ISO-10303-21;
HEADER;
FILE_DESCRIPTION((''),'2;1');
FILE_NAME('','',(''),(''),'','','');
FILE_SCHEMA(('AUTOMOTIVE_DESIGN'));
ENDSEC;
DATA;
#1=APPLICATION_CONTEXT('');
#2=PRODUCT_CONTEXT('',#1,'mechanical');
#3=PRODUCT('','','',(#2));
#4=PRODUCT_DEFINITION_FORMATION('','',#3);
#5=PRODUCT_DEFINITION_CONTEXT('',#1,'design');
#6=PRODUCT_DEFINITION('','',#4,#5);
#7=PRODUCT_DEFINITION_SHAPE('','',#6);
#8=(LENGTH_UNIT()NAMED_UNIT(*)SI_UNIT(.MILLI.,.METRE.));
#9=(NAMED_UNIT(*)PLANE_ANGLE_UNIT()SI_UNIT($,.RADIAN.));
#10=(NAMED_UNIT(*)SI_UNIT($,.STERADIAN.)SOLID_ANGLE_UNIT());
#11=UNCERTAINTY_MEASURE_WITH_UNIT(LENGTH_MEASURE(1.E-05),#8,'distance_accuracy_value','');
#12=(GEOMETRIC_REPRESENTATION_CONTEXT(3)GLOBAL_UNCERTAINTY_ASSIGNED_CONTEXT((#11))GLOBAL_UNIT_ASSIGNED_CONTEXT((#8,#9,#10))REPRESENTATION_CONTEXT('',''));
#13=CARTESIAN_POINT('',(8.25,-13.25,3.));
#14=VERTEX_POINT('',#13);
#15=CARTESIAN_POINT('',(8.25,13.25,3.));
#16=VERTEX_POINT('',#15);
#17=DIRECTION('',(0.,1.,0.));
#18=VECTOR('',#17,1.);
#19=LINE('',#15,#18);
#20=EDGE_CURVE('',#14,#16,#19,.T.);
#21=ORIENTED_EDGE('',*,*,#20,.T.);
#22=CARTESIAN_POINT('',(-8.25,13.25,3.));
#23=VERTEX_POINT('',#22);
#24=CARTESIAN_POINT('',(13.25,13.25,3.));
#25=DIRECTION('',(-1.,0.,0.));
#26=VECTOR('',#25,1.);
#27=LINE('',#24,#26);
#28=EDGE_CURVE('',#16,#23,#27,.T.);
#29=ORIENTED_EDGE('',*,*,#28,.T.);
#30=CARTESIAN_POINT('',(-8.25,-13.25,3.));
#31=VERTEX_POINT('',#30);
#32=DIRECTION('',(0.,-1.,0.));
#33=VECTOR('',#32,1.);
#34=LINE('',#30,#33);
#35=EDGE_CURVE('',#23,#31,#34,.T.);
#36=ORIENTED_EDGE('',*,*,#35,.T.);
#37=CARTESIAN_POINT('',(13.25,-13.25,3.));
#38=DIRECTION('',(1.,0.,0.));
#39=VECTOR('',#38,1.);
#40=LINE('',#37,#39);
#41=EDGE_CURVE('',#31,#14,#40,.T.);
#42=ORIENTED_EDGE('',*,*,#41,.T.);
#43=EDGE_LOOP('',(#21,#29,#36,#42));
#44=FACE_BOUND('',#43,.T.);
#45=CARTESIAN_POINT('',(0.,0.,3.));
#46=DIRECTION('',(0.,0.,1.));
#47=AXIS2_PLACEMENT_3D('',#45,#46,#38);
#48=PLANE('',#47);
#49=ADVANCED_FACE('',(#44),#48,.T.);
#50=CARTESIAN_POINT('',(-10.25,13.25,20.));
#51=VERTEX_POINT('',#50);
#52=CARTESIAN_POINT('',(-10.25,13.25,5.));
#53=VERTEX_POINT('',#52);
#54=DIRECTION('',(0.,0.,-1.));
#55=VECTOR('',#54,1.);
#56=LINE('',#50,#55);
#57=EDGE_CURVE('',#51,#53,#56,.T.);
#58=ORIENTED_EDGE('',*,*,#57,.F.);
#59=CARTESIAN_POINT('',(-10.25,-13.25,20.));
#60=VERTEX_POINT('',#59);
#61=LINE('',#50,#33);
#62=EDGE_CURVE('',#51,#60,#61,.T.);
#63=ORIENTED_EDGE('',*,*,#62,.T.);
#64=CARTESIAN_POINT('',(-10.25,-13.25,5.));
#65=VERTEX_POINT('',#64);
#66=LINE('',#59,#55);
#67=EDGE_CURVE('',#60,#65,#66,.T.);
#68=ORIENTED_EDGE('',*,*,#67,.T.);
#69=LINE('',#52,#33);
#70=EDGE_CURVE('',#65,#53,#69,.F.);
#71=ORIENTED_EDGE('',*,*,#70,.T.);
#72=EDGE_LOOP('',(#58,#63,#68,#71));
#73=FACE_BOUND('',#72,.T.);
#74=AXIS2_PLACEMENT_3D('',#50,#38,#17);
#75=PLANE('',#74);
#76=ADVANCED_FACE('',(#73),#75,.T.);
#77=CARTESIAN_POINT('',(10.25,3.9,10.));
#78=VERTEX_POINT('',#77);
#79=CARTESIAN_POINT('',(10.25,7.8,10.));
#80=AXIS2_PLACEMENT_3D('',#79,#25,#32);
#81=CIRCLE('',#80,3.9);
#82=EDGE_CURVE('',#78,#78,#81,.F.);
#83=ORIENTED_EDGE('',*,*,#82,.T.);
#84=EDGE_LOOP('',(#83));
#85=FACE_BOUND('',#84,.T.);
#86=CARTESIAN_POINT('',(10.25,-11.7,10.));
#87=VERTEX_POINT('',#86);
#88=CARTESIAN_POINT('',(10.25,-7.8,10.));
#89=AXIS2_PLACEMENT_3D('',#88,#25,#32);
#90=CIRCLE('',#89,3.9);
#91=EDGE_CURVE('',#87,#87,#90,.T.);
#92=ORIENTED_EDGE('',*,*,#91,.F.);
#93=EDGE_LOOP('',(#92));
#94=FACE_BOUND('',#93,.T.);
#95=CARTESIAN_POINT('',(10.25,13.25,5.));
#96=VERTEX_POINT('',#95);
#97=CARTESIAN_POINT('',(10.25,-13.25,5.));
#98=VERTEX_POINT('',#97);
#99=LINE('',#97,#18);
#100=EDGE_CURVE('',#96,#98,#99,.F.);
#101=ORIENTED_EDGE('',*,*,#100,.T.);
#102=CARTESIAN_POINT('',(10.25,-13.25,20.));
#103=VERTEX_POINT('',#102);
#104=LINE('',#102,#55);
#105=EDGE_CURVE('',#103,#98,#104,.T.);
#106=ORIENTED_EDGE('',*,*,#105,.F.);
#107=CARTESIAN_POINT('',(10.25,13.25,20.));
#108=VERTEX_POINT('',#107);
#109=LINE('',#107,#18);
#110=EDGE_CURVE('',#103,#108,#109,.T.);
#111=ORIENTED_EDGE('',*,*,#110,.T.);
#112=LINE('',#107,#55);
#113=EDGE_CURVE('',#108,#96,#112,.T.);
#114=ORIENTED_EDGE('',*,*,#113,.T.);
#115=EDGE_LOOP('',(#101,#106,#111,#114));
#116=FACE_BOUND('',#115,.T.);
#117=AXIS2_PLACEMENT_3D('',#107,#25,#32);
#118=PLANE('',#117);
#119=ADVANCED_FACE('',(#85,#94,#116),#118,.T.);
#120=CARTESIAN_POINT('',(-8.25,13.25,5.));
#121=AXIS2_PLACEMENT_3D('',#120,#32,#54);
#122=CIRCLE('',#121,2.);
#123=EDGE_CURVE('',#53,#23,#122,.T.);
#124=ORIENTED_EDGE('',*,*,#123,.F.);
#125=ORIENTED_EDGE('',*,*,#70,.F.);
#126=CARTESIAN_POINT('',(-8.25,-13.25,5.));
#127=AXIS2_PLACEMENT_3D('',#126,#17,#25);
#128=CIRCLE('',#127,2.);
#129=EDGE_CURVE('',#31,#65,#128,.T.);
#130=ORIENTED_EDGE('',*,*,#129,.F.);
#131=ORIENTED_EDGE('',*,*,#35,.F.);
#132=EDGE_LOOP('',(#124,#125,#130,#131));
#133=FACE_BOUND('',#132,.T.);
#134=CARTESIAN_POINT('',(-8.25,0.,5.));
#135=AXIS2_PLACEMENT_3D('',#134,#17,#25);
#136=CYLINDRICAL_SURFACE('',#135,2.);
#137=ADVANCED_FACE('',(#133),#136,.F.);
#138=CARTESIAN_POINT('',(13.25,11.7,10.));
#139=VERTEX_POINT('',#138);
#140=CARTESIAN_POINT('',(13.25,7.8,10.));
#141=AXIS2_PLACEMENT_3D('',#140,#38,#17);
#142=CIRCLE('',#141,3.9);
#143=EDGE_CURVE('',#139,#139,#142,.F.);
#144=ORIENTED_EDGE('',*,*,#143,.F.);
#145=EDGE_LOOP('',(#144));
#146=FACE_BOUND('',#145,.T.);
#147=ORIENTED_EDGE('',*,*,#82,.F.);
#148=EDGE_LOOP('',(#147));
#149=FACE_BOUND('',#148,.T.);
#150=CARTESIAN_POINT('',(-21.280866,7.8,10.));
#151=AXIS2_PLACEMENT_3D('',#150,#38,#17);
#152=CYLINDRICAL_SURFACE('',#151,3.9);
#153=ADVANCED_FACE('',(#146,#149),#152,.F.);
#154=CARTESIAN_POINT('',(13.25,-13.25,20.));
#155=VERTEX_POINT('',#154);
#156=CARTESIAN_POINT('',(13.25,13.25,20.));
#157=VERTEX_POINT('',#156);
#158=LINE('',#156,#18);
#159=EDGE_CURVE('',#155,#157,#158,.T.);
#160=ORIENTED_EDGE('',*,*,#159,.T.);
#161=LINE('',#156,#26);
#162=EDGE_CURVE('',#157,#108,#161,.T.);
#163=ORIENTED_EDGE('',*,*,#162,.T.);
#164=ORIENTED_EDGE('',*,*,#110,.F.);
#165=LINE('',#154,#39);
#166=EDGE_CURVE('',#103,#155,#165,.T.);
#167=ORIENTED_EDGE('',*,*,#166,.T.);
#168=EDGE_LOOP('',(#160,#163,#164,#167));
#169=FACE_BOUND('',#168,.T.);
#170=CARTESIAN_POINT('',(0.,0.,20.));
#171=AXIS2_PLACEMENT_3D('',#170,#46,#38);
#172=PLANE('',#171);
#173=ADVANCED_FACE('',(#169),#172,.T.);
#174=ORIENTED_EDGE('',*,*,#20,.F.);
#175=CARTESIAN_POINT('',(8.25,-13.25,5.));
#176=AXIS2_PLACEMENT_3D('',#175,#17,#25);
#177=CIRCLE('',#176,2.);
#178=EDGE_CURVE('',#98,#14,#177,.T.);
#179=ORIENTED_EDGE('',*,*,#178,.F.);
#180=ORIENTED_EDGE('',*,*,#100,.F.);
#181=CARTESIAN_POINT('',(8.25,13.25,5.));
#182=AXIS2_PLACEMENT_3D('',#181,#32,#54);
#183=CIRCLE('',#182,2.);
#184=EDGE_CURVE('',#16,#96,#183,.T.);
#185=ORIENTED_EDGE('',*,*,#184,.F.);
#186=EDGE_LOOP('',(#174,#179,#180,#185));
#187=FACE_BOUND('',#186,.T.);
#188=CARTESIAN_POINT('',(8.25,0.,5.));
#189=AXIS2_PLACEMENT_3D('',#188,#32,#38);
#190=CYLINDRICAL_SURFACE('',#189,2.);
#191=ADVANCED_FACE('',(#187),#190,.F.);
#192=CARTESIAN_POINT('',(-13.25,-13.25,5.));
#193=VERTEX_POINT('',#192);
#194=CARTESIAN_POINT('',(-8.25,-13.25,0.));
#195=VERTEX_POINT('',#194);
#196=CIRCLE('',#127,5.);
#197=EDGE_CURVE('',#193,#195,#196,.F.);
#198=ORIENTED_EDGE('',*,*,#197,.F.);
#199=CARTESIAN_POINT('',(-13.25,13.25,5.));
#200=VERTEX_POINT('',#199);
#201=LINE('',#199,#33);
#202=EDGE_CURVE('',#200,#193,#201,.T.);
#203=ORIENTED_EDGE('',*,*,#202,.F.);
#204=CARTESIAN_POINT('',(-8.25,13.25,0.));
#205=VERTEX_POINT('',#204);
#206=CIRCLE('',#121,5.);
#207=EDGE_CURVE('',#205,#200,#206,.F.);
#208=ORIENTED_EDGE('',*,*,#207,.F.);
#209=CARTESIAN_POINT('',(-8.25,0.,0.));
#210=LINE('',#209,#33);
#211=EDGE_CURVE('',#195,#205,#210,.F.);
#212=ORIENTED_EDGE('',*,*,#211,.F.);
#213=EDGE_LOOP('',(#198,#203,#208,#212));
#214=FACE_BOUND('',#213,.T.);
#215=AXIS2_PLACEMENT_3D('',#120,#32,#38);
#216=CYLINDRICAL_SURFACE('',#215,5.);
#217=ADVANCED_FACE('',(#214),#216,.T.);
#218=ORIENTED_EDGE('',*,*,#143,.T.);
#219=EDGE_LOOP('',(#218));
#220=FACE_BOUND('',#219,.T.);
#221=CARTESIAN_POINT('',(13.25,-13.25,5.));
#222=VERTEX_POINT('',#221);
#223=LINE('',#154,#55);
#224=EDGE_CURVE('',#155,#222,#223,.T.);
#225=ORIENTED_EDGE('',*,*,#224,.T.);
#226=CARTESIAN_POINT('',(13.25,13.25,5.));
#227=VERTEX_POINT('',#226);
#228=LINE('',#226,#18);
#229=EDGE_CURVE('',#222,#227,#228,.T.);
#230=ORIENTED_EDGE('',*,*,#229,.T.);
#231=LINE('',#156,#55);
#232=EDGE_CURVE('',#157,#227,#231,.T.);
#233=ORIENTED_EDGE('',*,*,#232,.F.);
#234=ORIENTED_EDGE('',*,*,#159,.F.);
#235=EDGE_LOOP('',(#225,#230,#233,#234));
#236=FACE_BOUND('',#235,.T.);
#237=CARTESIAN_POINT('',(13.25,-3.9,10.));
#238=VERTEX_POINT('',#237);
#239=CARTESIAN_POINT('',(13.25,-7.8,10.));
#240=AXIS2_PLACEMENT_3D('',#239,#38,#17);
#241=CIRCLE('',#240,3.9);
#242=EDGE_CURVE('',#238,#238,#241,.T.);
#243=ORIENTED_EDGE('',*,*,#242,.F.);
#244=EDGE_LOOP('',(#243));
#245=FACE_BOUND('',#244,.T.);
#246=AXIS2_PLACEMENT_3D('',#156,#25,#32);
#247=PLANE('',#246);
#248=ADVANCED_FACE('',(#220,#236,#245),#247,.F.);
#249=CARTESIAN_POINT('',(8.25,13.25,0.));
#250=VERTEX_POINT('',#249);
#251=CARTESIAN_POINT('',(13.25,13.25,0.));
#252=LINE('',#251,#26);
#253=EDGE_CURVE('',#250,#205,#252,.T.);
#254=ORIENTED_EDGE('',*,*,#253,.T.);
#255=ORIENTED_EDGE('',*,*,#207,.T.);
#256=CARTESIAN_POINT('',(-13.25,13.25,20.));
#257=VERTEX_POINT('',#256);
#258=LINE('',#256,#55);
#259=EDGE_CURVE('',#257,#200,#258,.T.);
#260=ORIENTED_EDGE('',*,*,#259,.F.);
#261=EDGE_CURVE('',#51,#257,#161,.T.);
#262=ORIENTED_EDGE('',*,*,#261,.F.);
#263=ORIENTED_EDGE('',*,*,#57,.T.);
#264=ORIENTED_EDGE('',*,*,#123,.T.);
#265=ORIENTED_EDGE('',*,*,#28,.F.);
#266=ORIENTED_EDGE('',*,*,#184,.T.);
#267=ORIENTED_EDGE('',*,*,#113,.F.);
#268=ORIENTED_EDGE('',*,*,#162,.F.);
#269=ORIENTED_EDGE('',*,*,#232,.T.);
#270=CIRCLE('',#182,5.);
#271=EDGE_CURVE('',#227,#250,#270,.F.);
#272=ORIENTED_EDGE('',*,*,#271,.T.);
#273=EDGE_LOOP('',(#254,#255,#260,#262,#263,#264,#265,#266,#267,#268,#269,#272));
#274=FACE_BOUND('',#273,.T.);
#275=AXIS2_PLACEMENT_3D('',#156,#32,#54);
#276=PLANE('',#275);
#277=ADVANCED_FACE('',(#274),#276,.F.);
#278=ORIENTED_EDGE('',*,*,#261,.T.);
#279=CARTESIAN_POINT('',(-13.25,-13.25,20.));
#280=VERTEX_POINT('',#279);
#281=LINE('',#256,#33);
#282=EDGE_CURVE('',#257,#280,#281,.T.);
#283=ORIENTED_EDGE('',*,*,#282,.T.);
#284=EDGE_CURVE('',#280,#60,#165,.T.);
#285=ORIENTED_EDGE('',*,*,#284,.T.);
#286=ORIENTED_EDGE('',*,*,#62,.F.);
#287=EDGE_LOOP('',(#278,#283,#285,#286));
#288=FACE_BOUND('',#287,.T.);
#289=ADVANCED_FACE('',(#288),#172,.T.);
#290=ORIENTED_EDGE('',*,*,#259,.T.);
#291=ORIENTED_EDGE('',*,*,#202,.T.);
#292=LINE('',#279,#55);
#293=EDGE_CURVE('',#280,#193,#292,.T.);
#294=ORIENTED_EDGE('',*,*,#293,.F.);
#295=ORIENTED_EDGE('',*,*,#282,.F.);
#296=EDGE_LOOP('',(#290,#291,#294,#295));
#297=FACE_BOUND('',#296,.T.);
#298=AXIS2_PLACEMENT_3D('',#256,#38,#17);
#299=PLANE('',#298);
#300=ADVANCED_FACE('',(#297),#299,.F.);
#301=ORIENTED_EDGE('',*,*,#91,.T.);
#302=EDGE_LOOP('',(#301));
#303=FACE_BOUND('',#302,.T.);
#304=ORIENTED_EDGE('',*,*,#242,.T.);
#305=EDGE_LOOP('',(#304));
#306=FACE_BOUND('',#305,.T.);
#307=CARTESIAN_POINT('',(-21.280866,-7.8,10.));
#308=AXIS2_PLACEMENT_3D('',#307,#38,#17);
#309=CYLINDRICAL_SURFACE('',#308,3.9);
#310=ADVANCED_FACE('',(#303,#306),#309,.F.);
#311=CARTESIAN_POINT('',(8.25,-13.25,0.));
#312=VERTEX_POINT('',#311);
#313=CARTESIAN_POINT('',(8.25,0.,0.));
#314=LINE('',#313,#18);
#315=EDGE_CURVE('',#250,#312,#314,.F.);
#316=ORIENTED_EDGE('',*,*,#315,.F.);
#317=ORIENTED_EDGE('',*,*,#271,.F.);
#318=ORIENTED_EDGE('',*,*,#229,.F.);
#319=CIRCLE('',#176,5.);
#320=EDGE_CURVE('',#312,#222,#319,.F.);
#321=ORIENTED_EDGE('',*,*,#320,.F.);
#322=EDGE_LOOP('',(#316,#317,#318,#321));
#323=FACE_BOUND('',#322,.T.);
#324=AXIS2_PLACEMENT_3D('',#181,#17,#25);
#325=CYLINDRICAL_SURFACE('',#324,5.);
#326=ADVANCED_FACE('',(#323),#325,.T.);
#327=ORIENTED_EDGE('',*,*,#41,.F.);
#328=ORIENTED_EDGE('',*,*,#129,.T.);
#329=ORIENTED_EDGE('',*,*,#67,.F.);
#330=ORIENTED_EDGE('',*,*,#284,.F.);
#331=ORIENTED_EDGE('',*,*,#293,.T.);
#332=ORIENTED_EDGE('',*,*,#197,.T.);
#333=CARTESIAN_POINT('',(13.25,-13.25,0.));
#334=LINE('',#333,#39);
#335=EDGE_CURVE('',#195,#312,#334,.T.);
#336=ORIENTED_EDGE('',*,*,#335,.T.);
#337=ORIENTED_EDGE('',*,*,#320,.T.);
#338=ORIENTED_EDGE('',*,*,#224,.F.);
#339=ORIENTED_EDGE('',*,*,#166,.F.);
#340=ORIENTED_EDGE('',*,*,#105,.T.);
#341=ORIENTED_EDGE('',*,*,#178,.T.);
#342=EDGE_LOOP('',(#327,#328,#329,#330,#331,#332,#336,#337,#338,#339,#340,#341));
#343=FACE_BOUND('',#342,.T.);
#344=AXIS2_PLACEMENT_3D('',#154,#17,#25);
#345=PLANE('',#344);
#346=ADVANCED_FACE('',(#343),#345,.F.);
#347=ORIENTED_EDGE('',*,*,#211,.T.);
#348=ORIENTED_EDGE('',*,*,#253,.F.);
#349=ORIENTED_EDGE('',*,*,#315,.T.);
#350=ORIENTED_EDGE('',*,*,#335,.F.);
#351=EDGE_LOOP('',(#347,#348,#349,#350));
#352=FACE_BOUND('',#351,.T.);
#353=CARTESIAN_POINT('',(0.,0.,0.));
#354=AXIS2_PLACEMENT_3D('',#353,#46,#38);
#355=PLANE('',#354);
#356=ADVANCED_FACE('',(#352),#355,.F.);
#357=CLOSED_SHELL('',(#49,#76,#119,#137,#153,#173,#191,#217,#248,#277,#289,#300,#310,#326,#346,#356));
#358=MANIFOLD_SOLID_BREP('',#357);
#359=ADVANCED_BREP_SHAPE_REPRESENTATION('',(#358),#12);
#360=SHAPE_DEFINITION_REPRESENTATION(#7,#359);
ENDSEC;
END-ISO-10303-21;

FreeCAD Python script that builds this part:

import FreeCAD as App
import Part
import Sketcher

V = App.Vector


def edges_at(feature, points):
    """Names of the edges that pass closest to the given points."""
    edges = feature.Shape.Edges
    near = lambda p: min(range(len(edges)), key=lambda i: edges[i].distToShape(Part.Vertex(*p))[0])
    return sorted({f"Edge{near(p) + 1}" for p in points})


def faces_at(feature, points):
    """Names of the faces that lie closest to the given points."""
    faces = feature.Shape.Faces
    near = lambda p: min(range(len(faces)), key=lambda i: faces[i].distToShape(Part.Vertex(*p))[0])
    return sorted({f"Face{near(p) + 1}" for p in points})

doc = App.newDocument("Part")
params = doc.addObject("Spreadsheet::Sheet", "Params")
for row, (alias, value) in enumerate([
    ("sketch1_width", "26.5 mm"),
    ("pad1_length", "20 mm"),
    ("thickness_wall", "3 mm"),
    ("sketch2_diameter", "7.8 mm"),
    ("pocket1_length", "23.5 mm"),
    ("fillet_radius", "5 mm"),
    ("fillet2_radius", "2 mm"),
], start=1):
    params.set(f"A{row}", alias)
    params.set(f"B{row}", "=" + value)
    params.setAlias(f"B{row}", alias)

body = doc.addObject("PartDesign::Body", "Body")

sketch1 = doc.addObject("Sketcher::SketchObject", "Sketch")
body.addObject(sketch1)
sketch1.AttachmentSupport = (doc.XY_Plane, [""])
sketch1.MapMode = "FlatFace"
sketch1.addGeometry([
    Part.LineSegment(V(-13, -13, 0), V(13, -13, 0)),
    Part.LineSegment(V(13, -13, 0), V(13, 13, 0)),
    Part.LineSegment(V(13, 13, 0), V(-13, 13, 0)),
    Part.LineSegment(V(-13, 13, 0), V(-13, -13, 0)),
], False)
sketch1.addConstraint([
    Sketcher.Constraint("Coincident", 0, 2, 1, 1),
    Sketcher.Constraint("Coincident", 1, 2, 2, 1),
    Sketcher.Constraint("Coincident", 2, 2, 3, 1),
    Sketcher.Constraint("Coincident", 3, 2, 0, 1),
    Sketcher.Constraint("Horizontal", 0),
    Sketcher.Constraint("Vertical", 1),
    Sketcher.Constraint("Horizontal", 2),
    Sketcher.Constraint("Vertical", 3),
    Sketcher.Constraint("Symmetric", 0, 2, 2, 2, -1, 1),
    Sketcher.Constraint("Equal", 2, 1),
    Sketcher.Constraint("DistanceX", 0, 1, 0, 2, 26.5),
])
sketch1.setExpression("Constraints[10]", "Params.sketch1_width")
pad1 = doc.addObject("PartDesign::Pad", "Pad")
body.addObject(pad1)
pad1.Profile = sketch1
pad1.setExpression("Length", "Params.pad1_length")
doc.recompute()

thickness = doc.addObject("PartDesign::Thickness", "Thickness")
body.addObject(thickness)
thickness.Base = (pad1, faces_at(pad1, [(0, 0, 20), (0, 13.25, 10), (0, -13.25, 10)]))
thickness.setExpression("Value", "Params.thickness_wall")
thickness.Reversed = True
thickness.Join = "Intersection"

sketch2 = doc.addObject("Sketcher::SketchObject", "Sketch001")
body.addObject(sketch2)
sketch2.AttachmentSupport = (doc.YZ_Plane, [""])
sketch2.MapMode = "FlatFace"
sketch2.AttachmentOffset = App.Placement(V(0, 0, 13.25), App.Rotation())
sketch2.addGeometry([
    Part.Circle(V(-7.8, 10, 0), V(0, 0, 1), 3.9),
    Part.Circle(V(7.8, 10, 0), V(0, 0, 1), 3.9),
], False)
sketch2.addConstraint([
    Sketcher.Constraint("Equal", 0, 1),
    Sketcher.Constraint("Symmetric", 0, 3, 1, 3, -2),
    Sketcher.Constraint("Diameter", 0, 7.8),
    Sketcher.Constraint("DistanceY", -1, 1, 0, 3, 10.0),
    Sketcher.Constraint("DistanceX", 0, 3, -1, 1, 7.8),
])
sketch2.setExpression("Constraints[2]", "Params.sketch2_diameter")
pocket1 = doc.addObject("PartDesign::Pocket", "Pocket")
body.addObject(pocket1)
pocket1.Profile = sketch2
pocket1.setExpression("Length", "Params.pocket1_length")
doc.recompute()

fillet = doc.addObject("PartDesign::Fillet", "Fillet")
body.addObject(fillet)
fillet.Base = (pocket1, edges_at(pocket1, [(-13.25, 0, 0), (13.25, 0, 0)]))
fillet.setExpression("Radius", "Params.fillet_radius")
doc.recompute()

fillet2 = doc.addObject("PartDesign::Fillet", "Fillet001")
body.addObject(fillet2)
fillet2.Base = (fillet, edges_at(fillet, [(10.25, 0, 3), (-10.25, 0, 3)]))
fillet2.setExpression("Radius", "Params.fillet2_radius")

doc.recompute()
